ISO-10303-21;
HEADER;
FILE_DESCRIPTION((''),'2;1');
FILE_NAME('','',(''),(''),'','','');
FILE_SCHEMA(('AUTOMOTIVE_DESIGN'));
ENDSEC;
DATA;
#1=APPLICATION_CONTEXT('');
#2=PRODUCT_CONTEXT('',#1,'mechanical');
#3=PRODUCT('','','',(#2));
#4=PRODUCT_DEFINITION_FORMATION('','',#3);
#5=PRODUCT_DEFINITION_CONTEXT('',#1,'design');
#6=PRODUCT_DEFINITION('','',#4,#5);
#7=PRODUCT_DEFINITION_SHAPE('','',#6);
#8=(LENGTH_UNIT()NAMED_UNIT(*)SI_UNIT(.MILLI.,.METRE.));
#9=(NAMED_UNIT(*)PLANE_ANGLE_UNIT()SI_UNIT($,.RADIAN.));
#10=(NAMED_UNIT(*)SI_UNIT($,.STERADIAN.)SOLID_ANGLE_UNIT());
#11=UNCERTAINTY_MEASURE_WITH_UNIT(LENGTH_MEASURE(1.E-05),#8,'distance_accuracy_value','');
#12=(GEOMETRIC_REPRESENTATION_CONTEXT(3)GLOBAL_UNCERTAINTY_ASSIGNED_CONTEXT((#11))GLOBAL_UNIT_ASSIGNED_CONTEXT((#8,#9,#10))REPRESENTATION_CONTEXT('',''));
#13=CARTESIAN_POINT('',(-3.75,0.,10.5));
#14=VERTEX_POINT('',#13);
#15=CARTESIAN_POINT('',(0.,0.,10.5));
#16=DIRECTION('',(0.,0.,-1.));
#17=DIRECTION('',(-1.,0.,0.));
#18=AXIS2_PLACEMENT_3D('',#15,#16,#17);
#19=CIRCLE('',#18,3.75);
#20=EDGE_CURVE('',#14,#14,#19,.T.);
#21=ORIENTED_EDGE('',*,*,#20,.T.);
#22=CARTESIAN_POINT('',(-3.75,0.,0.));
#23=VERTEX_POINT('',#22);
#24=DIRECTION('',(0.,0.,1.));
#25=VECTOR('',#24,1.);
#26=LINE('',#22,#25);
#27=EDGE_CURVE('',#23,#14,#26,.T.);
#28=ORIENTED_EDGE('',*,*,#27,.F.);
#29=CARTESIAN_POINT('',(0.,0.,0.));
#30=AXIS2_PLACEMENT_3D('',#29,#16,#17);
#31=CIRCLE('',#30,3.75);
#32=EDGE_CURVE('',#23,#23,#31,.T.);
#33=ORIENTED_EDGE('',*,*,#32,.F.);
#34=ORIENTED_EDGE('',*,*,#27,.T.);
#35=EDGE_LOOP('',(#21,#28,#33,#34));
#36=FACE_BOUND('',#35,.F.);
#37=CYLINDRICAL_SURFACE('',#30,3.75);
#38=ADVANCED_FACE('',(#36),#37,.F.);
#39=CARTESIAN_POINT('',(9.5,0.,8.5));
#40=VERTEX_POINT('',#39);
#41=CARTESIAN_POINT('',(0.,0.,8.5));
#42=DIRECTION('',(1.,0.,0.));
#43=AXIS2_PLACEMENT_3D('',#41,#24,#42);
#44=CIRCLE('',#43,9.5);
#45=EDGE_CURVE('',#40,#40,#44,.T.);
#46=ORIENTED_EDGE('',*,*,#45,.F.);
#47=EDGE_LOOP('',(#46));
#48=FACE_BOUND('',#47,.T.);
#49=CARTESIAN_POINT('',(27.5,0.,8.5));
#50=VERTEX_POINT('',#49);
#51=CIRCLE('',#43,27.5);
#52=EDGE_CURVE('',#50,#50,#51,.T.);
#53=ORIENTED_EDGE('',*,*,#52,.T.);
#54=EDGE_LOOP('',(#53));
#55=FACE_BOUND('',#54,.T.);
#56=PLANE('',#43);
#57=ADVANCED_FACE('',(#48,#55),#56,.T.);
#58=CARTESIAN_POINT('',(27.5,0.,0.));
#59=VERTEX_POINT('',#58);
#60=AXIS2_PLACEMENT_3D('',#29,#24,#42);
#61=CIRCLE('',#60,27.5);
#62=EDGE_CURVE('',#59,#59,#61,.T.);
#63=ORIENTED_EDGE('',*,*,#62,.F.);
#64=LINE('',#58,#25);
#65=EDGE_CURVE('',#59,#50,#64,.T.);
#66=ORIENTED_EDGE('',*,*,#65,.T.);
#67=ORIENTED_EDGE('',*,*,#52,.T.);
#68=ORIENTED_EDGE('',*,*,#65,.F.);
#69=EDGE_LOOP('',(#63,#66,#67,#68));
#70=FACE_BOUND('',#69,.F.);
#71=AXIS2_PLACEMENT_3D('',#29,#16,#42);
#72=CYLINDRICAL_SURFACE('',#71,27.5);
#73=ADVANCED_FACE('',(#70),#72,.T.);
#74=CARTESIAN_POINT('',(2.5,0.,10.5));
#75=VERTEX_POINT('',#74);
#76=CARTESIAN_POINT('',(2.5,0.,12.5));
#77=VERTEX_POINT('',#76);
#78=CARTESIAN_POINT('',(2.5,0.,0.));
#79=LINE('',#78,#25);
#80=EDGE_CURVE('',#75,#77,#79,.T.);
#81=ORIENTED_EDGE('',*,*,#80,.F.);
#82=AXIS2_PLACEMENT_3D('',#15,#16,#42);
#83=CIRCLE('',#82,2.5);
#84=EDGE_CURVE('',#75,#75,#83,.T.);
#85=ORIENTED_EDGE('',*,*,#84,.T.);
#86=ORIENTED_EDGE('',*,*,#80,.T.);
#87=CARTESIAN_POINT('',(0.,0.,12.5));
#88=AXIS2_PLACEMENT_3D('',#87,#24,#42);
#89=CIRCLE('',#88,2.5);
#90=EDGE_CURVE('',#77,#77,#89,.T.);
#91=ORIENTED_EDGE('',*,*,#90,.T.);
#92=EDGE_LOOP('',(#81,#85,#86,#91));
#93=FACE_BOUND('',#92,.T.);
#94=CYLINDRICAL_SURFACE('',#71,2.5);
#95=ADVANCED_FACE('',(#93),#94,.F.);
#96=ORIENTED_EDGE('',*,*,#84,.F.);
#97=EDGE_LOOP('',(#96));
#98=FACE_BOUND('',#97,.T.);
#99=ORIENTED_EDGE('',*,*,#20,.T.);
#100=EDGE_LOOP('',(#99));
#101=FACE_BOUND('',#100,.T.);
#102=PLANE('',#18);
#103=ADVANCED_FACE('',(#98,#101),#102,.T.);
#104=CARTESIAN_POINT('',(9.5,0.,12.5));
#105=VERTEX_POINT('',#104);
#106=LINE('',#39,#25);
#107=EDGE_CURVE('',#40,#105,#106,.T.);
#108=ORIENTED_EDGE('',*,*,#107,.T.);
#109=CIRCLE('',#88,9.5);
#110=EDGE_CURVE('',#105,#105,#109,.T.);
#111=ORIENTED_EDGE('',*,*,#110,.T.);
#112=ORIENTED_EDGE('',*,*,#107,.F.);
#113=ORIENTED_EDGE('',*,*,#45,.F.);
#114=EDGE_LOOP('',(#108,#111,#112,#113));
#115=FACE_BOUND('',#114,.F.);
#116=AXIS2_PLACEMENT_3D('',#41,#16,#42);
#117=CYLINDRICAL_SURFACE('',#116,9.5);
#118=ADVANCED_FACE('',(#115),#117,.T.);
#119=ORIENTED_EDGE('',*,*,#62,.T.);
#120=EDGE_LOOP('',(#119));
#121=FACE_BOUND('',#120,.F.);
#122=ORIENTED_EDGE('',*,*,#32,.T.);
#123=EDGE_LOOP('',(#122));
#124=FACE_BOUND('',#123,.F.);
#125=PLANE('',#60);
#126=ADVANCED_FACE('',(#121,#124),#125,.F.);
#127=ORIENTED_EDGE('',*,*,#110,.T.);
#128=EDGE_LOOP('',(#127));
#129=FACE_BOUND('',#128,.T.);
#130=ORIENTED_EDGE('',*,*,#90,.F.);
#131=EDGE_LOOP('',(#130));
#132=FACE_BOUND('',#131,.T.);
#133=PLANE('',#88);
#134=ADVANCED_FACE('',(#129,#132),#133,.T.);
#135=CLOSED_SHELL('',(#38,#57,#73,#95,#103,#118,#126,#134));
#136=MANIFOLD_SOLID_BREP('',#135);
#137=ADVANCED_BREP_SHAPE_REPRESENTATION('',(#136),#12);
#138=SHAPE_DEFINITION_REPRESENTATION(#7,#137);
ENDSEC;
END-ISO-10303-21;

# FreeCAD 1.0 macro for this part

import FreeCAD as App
import Part
import Sketcher

V = App.Vector

doc = App.newDocument("Part")
body = doc.addObject("PartDesign::Body", "Body")

sketch1 = body.newObject("Sketcher::SketchObject", "Sketch")
sketch1.AttachmentSupport = (doc.getObject("XY_Plane"), [""])
sketch1.MapMode = "FlatFace"
sketch1.addGeometry(Part.Circle(V(0, 0, 0), V(0, 0, 1), 27.5), False)
sketch1.addGeometry(Part.Circle(V(0, 0, 0), V(0, 0, 1), 2.5), False)
sketch1.addConstraint(Sketcher.Constraint("Coincident", 0, 3, -1, 1))
sketch1.addConstraint(Sketcher.Constraint("Coincident", 1, 3, -1, 1))
sketch1.addConstraint(Sketcher.Constraint("Diameter", 0, 55.0))
sketch1.addConstraint(Sketcher.Constraint("Diameter", 1, 5.0))
pad1 = body.newObject("PartDesign::Pad", "Pad")
pad1.Profile = sketch1
pad1.Length = 8.5

sketch2 = body.newObject("Sketcher::SketchObject", "Sketch001")
sketch2.AttachmentSupport = (doc.getObject("XY_Plane"), [""])
sketch2.MapMode = "FlatFace"
sketch2.AttachmentOffset = App.Placement(V(0, 0, 8.5), App.Rotation())
sketch2.addGeometry(Part.Circle(V(0, 0, 0), V(0, 0, 1), 9.5), False)
sketch2.addGeometry(Part.Circle(V(0, 0, 0), V(0, 0, 1), 2.5), False)
sketch2.addConstraint(Sketcher.Constraint("Coincident", 0, 3, -1, 1))
sketch2.addConstraint(Sketcher.Constraint("Coincident", 1, 3, -1, 1))
sketch2.addConstraint(Sketcher.Constraint("Diameter", 0, 19.0))
sketch2.addConstraint(Sketcher.Constraint("Diameter", 1, 5.0))
pad2 = body.newObject("PartDesign::Pad", "Pad001")
pad2.Profile = sketch2
pad2.Length = 4

sketch3 = body.newObject("Sketcher::SketchObject", "Sketch002")
sketch3.AttachmentSupport = (doc.getObject("XY_Plane"), [""])
sketch3.MapMode = "FlatFace"
sketch3.addGeometry(Part.Circle(V(0, 0, 0), V(0, 0, 1), 3.75), False)
sketch3.addConstraint(Sketcher.Constraint("Coincident", 0, 3, -1, 1))
sketch3.addConstraint(Sketcher.Constraint("Diameter", 0, 7.5))
pocket1 = body.newObject("PartDesign::Pocket", "Pocket")
pocket1.Profile = sketch3
pocket1.Length = 10.5
pocket1.Reversed = True

doc.recompute()
